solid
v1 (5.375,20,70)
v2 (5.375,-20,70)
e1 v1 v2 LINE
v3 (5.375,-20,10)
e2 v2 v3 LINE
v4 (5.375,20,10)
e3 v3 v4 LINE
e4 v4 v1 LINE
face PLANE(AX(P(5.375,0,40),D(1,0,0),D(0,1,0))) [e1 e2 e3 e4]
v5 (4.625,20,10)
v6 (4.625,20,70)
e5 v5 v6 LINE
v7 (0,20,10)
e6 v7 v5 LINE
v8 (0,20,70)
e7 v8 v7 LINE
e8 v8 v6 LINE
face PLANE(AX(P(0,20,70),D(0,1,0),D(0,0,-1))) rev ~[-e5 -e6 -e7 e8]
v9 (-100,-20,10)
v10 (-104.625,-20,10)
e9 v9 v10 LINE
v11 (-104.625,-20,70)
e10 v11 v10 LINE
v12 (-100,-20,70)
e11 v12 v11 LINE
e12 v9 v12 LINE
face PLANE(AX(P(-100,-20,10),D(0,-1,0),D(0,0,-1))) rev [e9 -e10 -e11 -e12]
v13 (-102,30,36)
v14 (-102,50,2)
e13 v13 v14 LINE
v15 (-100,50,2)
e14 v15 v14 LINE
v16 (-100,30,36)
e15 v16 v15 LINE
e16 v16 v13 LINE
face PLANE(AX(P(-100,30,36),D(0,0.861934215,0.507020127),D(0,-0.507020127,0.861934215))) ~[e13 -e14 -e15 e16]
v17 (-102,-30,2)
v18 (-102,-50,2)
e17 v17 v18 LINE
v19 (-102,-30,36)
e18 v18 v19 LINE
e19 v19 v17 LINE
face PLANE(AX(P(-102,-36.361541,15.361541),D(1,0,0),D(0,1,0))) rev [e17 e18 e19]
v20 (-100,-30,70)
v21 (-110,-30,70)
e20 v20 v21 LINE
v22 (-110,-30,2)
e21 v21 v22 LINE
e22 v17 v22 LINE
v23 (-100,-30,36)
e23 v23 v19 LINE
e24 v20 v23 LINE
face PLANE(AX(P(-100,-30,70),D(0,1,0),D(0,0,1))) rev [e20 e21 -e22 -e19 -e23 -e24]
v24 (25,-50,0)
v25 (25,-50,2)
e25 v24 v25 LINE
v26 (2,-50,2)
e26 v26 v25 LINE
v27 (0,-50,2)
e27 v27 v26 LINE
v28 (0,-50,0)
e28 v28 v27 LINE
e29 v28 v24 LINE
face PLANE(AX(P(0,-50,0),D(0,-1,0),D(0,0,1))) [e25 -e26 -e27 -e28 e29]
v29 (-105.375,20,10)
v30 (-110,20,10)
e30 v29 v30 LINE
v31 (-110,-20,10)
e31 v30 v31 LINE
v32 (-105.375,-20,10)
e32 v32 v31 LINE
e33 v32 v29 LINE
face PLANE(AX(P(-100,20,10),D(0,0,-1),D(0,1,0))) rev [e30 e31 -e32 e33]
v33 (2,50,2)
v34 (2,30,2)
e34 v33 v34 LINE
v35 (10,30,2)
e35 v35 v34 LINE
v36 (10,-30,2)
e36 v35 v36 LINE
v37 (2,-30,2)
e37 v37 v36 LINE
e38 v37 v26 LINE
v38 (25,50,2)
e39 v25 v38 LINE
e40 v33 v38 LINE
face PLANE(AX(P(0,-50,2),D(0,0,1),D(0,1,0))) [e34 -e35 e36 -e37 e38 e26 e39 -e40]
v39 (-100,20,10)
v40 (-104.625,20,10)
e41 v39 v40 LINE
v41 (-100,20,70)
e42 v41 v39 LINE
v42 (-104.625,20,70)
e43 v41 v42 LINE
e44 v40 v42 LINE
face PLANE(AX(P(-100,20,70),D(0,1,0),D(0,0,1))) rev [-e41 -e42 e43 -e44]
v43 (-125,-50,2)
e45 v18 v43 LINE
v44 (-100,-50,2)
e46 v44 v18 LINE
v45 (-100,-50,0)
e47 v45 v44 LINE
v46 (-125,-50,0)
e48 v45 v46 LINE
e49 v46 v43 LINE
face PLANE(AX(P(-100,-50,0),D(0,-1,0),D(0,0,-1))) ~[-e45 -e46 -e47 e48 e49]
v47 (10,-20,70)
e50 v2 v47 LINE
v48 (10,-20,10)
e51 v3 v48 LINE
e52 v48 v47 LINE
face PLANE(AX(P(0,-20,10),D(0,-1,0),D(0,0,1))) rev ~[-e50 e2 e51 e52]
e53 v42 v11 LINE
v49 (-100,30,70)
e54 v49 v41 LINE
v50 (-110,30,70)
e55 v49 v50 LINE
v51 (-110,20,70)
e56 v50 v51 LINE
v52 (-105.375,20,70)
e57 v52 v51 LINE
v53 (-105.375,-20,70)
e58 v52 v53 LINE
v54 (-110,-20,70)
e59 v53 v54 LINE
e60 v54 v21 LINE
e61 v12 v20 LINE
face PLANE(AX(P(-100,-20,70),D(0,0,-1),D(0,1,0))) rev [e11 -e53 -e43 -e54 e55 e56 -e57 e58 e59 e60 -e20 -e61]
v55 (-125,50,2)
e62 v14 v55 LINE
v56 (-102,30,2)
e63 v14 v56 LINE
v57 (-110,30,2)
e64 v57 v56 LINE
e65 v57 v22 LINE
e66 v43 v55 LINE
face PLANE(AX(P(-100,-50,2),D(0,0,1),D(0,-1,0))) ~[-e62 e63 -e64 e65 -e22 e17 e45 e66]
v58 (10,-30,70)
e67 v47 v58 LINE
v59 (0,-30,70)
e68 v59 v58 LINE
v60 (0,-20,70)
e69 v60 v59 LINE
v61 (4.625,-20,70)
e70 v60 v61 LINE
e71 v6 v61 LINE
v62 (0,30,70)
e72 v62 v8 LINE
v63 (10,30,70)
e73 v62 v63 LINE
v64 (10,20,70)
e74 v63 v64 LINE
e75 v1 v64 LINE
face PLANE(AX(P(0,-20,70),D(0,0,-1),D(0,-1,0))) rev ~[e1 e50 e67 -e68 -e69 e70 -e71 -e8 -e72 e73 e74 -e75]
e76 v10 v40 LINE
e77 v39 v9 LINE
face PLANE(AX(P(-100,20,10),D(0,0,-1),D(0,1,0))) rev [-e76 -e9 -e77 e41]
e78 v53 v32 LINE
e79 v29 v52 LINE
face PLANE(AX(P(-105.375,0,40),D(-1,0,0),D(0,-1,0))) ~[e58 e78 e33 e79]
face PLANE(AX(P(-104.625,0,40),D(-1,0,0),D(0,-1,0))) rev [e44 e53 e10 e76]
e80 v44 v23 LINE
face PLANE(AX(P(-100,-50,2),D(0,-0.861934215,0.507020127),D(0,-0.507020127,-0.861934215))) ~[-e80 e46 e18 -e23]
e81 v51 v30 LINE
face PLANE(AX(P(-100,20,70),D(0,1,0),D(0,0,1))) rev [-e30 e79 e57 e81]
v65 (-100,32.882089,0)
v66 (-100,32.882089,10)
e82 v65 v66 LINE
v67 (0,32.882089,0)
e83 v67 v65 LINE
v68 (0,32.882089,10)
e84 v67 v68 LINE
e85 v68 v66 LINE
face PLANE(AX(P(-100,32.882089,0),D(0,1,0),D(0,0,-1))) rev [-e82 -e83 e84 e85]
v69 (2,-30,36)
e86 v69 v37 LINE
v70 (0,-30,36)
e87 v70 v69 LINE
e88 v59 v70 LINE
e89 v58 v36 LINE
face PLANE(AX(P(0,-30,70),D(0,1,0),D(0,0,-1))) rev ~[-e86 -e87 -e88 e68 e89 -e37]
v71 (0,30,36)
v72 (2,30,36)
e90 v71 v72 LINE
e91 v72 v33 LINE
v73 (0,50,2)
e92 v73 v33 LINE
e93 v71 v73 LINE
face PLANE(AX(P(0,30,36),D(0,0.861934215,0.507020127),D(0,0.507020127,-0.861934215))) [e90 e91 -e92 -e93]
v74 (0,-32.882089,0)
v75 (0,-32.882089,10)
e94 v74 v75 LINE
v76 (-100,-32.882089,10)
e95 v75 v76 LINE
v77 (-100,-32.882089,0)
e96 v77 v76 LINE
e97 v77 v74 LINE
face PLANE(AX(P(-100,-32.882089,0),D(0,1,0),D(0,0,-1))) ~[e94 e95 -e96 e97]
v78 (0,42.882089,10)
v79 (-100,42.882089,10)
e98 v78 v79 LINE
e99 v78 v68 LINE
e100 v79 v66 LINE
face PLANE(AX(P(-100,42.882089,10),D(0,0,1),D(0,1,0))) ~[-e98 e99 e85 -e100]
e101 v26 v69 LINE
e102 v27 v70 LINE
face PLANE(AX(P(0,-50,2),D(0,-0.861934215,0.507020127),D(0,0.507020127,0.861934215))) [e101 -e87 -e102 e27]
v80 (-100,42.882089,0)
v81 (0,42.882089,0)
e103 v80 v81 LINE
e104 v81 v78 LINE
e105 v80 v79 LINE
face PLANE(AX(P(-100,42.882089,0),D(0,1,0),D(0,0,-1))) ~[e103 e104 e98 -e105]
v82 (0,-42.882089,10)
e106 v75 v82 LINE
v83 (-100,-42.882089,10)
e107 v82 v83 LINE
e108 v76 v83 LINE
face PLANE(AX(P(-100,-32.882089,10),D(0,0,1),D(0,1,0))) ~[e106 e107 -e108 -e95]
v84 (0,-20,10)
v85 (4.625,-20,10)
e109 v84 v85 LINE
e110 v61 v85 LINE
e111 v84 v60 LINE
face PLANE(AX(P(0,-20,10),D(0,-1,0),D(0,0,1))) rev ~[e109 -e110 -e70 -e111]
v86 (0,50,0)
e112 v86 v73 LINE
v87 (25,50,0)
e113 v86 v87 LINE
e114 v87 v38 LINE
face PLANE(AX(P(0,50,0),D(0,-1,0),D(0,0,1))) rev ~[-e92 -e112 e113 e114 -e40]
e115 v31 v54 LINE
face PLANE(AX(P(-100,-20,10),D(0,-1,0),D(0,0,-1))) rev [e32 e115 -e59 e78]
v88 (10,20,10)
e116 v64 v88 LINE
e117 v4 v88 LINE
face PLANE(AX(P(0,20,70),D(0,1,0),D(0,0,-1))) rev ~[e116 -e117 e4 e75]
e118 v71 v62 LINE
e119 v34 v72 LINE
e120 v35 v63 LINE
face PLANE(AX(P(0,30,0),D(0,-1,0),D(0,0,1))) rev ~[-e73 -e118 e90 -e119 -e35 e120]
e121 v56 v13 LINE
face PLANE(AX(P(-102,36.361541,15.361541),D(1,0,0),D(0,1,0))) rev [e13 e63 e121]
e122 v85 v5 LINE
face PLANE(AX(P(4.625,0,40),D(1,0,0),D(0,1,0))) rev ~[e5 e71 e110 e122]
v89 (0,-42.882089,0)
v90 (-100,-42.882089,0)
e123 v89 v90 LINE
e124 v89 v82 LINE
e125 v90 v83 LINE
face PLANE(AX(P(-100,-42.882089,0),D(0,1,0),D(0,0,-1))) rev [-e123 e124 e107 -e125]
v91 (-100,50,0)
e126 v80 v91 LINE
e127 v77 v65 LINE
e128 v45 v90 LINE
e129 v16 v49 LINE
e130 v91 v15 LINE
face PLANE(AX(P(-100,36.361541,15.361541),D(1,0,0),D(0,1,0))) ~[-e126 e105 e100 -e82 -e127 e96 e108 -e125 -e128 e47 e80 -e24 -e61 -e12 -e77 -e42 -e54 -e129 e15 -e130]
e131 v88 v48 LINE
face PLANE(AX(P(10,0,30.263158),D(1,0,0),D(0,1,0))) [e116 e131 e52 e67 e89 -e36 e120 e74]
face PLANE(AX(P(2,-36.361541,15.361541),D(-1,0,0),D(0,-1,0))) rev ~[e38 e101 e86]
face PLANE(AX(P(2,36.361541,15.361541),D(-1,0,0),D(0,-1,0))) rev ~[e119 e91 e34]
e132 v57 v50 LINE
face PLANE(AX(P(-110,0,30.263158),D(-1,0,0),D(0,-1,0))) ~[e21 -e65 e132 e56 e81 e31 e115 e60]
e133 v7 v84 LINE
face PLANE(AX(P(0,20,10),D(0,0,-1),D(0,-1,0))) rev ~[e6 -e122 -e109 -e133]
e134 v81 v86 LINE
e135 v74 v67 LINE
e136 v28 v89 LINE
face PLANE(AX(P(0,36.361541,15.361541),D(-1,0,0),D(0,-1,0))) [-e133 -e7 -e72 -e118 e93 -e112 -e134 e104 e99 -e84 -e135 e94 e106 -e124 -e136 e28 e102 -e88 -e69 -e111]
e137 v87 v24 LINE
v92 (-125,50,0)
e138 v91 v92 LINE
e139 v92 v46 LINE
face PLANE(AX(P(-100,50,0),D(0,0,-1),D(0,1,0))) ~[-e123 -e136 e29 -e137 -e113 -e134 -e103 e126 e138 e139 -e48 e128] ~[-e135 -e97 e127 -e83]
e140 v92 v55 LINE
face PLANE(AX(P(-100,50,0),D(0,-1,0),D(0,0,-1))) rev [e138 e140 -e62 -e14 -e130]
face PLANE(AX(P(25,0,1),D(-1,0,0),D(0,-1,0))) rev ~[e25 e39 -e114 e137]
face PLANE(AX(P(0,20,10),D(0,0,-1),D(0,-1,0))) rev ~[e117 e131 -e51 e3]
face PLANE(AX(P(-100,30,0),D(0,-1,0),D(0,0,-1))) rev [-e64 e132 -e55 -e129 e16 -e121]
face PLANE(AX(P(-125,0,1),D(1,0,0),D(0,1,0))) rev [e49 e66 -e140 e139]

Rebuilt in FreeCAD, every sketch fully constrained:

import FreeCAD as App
import Part
import Sketcher

doc = App.newDocument("Part")
body = doc.addObject("PartDesign::Body", "Body")

sketch1 = doc.addObject("Sketcher::SketchObject", "Sketch")
body.addObject(sketch1)
sketch1.AttachmentSupport = (doc.YZ_Plane, [""])
sketch1.MapMode = "FlatFace"
sketch1.addGeometry(Part.LineSegment(App.Vector(-30, 0, 0), App.Vector(30, 0, 0)), False)
sketch1.addGeometry(Part.LineSegment(App.Vector(30, 0, 0), App.Vector(30, 70, 0)), False)
sketch1.addGeometry(Part.LineSegment(App.Vector(30, 70, 0), App.Vector(20, 70, 0)), False)
sketch1.addGeometry(Part.LineSegment(App.Vector(20, 70, 0), App.Vector(20, 10, 0)), False)
sketch1.addGeometry(Part.LineSegment(App.Vector(20, 10, 0), App.Vector(-20, 10, 0)), False)
sketch1.addGeometry(Part.LineSegment(App.Vector(-20, 10, 0), App.Vector(-20, 70, 0)), False)
sketch1.addGeometry(Part.LineSegment(App.Vector(-20, 70, 0), App.Vector(-30, 70, 0)), False)
sketch1.addGeometry(Part.LineSegment(App.Vector(-30, 70, 0), App.Vector(-30, 0, 0)), False)
sketch1.addConstraint(Sketcher.Constraint("Coincident", 0, 2, 1, 1))
sketch1.addConstraint(Sketcher.Constraint("Coincident", 1, 2, 2, 1))
sketch1.addConstraint(Sketcher.Constraint("Coincident", 2, 2, 3, 1))
sketch1.addConstraint(Sketcher.Constraint("Coincident", 3, 2, 4, 1))
sketch1.addConstraint(Sketcher.Constraint("Coincident", 4, 2, 5, 1))
sketch1.addConstraint(Sketcher.Constraint("Coincident", 5, 2, 6, 1))
sketch1.addConstraint(Sketcher.Constraint("Coincident", 6, 2, 7, 1))
sketch1.addConstraint(Sketcher.Constraint("Coincident", 7, 2, 0, 1))
sketch1.addConstraint(Sketcher.Constraint("Horizontal", 0))
sketch1.addConstraint(Sketcher.Constraint("Vertical", 1))
sketch1.addConstraint(Sketcher.Constraint("Horizontal", 2))
sketch1.addConstraint(Sketcher.Constraint("Vertical", 3))
sketch1.addConstraint(Sketcher.Constraint("Horizontal", 4))
sketch1.addConstraint(Sketcher.Constraint("Vertical", 5))
sketch1.addConstraint(Sketcher.Constraint("Horizontal", 6))
sketch1.addConstraint(Sketcher.Constraint("Vertical", 7))
sketch1.addConstraint(Sketcher.Constraint("Symmetric", 0, 2, 7, 2, -1, 1))
sketch1.addConstraint(Sketcher.Constraint("Symmetric", 2, 2, 5, 2, -2))
sketch1.addConstraint(Sketcher.Constraint("Equal", 0, 3))
sketch1.addConstraint(Sketcher.Constraint("DistanceX", 0, 1, 0, 2, 60.0))
sketch1.addConstraint(Sketcher.Constraint("DistanceX", 2, 2, 2, 1, 10.0))
sketch1.addConstraint(Sketcher.Constraint("DistanceY", 1, 1, 1, 2, 70.0))
pad1 = doc.addObject("PartDesign::Pad", "Pad")
body.addObject(pad1)
pad1.Profile = sketch1
pad1.Length = 10

sketch2 = doc.addObject("Sketcher::SketchObject", "Sketch001")
body.addObject(sketch2)
sketch2.AttachmentSupport = (doc.YZ_Plane, [""])
sketch2.MapMode = "FlatFace"
sketch2.AttachmentOffset = App.Placement(App.Vector(0, 0, 5), App.Rotation())
sketch2.addGeometry(Part.LineSegment(App.Vector(-20, 10, 0), App.Vector(20, 10, 0)), False)
sketch2.addGeometry(Part.LineSegment(App.Vector(20, 10, 0), App.Vector(20, 70, 0)), False)
sketch2.addGeometry(Part.LineSegment(App.Vector(20, 70, 0), App.Vector(-20, 70, 0)), False)
sketch2.addGeometry(Part.LineSegment(App.Vector(-20, 70, 0), App.Vector(-20, 10, 0)), False)
sketch2.addConstraint(Sketcher.Constraint("Coincident", 0, 2, 1, 1))
sketch2.addConstraint(Sketcher.Constraint("Coincident", 1, 2, 2, 1))
sketch2.addConstraint(Sketcher.Constraint("Coincident", 2, 2, 3, 1))
sketch2.addConstraint(Sketcher.Constraint("Coincident", 3, 2, 0, 1))
sketch2.addConstraint(Sketcher.Constraint("Horizontal", 0))
sketch2.addConstraint(Sketcher.Constraint("Vertical", 1))
sketch2.addConstraint(Sketcher.Constraint("Horizontal", 2))
sketch2.addConstraint(Sketcher.Constraint("Vertical", 3))
sketch2.addConstraint(Sketcher.Constraint("DistanceX", 0, 1, 0, 2, 40.0))
sketch2.addConstraint(Sketcher.Constraint("DistanceY", 1, 1, 1, 2, 60.0))
sketch2.addConstraint(Sketcher.Constraint("DistanceX", -1, 1, 0, 2, 20.0))
sketch2.addConstraint(Sketcher.Constraint("DistanceY", -1, 1, 0, 2, 10.0))
pad2 = doc.addObject("PartDesign::Pad", "Pad001")
body.addObject(pad2)
pad2.Profile = sketch2
pad2.Length = 0.75
pad2.Midplane = True

sketch3 = doc.addObject("Sketcher::SketchObject", "Sketch002")
body.addObject(sketch3)
sketch3.AttachmentSupport = (doc.YZ_Plane, [""])
sketch3.MapMode = "FlatFace"
sketch3.addGeometry(Part.LineSegment(App.Vector(-50, 0, 0), App.Vector(-50, 2, 0)), False)
sketch3.addGeometry(Part.LineSegment(App.Vector(-50, 2, 0), App.Vector(50, 2, 0)), False)
sketch3.addGeometry(Part.LineSegment(App.Vector(50, 2, 0), App.Vector(50, 0, 0)), False)
sketch3.addGeometry(Part.LineSegment(App.Vector(50, 0, 0), App.Vector(-50, 0, 0)), False)
sketch3.addConstraint(Sketcher.Constraint("Coincident", 0, 2, 1, 1))
sketch3.addConstraint(Sketcher.Constraint("Coincident", 1, 2, 2, 1))
sketch3.addConstraint(Sketcher.Constraint("Coincident", 2, 2, 3, 1))
sketch3.addConstraint(Sketcher.Constraint("Coincident", 3, 2, 0, 1))
sketch3.addConstraint(Sketcher.Constraint("Vertical", 0))
sketch3.addConstraint(Sketcher.Constraint("Horizontal", 1))
sketch3.addConstraint(Sketcher.Constraint("Vertical", 2))
sketch3.addConstraint(Sketcher.Constraint("Horizontal", 3))
sketch3.addConstraint(Sketcher.Constraint("Symmetric", 2, 2, 3, 2, -1, 1))
sketch3.addConstraint(Sketcher.Constraint("DistanceX", 1, 1, 1, 2, 100.0))
sketch3.addConstraint(Sketcher.Constraint("DistanceY", 0, 1, 0, 2, 2.0))
pad3 = doc.addObject("PartDesign::Pad", "Pad002")
body.addObject(pad3)
pad3.Profile = sketch3
pad3.Length = 25

sketch4 = doc.addObject("Sketcher::SketchObject", "Sketch003")
body.addObject(sketch4)
sketch4.AttachmentSupport = (doc.YZ_Plane, [""])
sketch4.MapMode = "FlatFace"
sketch4.addGeometry(Part.LineSegment(App.Vector(50, 2, 0), App.Vector(30, 2, 0)), False)
sketch4.addGeometry(Part.LineSegment(App.Vector(30, 2, 0), App.Vector(30, 36, 0)), False)
sketch4.addGeometry(Part.LineSegment(App.Vector(30, 36, 0), App.Vector(50, 2, 0)), False)
sketch4.addGeometry(Part.LineSegment(App.Vector(-30, 2, 0), App.Vector(-50, 2, 0)), False)
sketch4.addGeometry(Part.LineSegment(App.Vector(-50, 2, 0), App.Vector(-30, 36, 0)), False)
sketch4.addGeometry(Part.LineSegment(App.Vector(-30, 36, 0), App.Vector(-30, 2, 0)), False)
sketch4.addConstraint(Sketcher.Constraint("Coincident", 0, 2, 1, 1))
sketch4.addConstraint(Sketcher.Constraint("Coincident", 1, 2, 2, 1))
sketch4.addConstraint(Sketcher.Constraint("Coincident", 2, 2, 0, 1))
sketch4.addConstraint(Sketcher.Constraint("Coincident", 3, 2, 4, 1))
sketch4.addConstraint(Sketcher.Constraint("Coincident", 4, 2, 5, 1))
sketch4.addConstraint(Sketcher.Constraint("Coincident", 5, 2, 3, 1))
sketch4.addConstraint(Sketcher.Constraint("Horizontal", 0))
sketch4.addConstraint(Sketcher.Constraint("Vertical", 1))
sketch4.addConstraint(Sketcher.Constraint("Horizontal", 3))
sketch4.addConstraint(Sketcher.Constraint("Vertical", 5))
sketch4.addConstraint(Sketcher.Constraint("Symmetric", 2, 2, 3, 2, -2))
sketch4.addConstraint(Sketcher.Constraint("Symmetric", 1, 2, 4, 2, -2))
sketch4.addConstraint(Sketcher.Constraint("DistanceX", 0, 2, 0, 1, 20.0))
sketch4.addConstraint(Sketcher.Constraint("DistanceY", 1, 1, 1, 2, 34.0))
sketch4.addConstraint(Sketcher.Constraint("DistanceX", -1, 1, 0, 2, 30.0))
sketch4.addConstraint(Sketcher.Constraint("DistanceY", -1, 1, 0, 2, 2.0))
pad4 = doc.addObject("PartDesign::Pad", "Pad003")
body.addObject(pad4)
pad4.Profile = sketch4
pad4.Length = 2

sketch5 = doc.addObject("Sketcher::SketchObject", "Sketch004")
body.addObject(sketch5)
sketch5.AttachmentSupport = (doc.YZ_Plane, [""])
sketch5.MapMode = "FlatFace"
sketch5.addGeometry(Part.LineSegment(App.Vector(42.882089, 10, 0), App.Vector(42.882089, 0, 0)), False)
sketch5.addGeometry(Part.LineSegment(App.Vector(42.882089, 0, 0), App.Vector(32.882089, 0, 0)), False)
sketch5.addGeometry(Part.LineSegment(App.Vector(32.882089, 0, 0), App.Vector(32.882089, 10, 0)), False)
sketch5.addGeometry(Part.LineSegment(App.Vector(32.882089, 10, 0), App.Vector(42.882089, 10, 0)), False)
sketch5.addGeometry(Part.LineSegment(App.Vector(-32.882089, 10, 0), App.Vector(-32.882089, 0, 0)), False)
sketch5.addGeometry(Part.LineSegment(App.Vector(-32.882089, 0, 0), App.Vector(-42.882089, 0, 0)), False)
sketch5.addGeometry(Part.LineSegment(App.Vector(-42.882089, 0, 0), App.Vector(-42.882089, 10, 0)), False)
sketch5.addGeometry(Part.LineSegment(App.Vector(-42.882089, 10, 0), App.Vector(-32.882089, 10, 0)), False)
sketch5.addConstraint(Sketcher.Constraint("Coincident", 0, 2, 1, 1))
sketch5.addConstraint(Sketcher.Constraint("Coincident", 1, 2, 2, 1))
sketch5.addConstraint(Sketcher.Constraint("Coincident", 2, 2, 3, 1))
sketch5.addConstraint(Sketcher.Constraint("Coincident", 3, 2, 0, 1))
sketch5.addConstraint(Sketcher.Constraint("Coincident", 4, 2, 5, 1))
sketch5.addConstraint(Sketcher.Constraint("Coincident", 5, 2, 6, 1))
sketch5.addConstraint(Sketcher.Constraint("Coincident", 6, 2, 7, 1))
sketch5.addConstraint(Sketcher.Constraint("Coincident", 7, 2, 4, 1))
sketch5.addConstraint(Sketcher.Constraint("Vertical", 0))
sketch5.addConstraint(Sketcher.Constraint("Horizontal", 1))
sketch5.addConstraint(Sketcher.Constraint("Vertical", 2))
sketch5.addConstraint(Sketcher.Constraint("Horizontal", 3))
sketch5.addConstraint(Sketcher.Constraint("Vertical", 4))
sketch5.addConstraint(Sketcher.Constraint("Horizontal", 5))
sketch5.addConstraint(Sketcher.Constraint("Vertical", 6))
sketch5.addConstraint(Sketcher.Constraint("Horizontal", 7))
sketch5.addConstraint(Sketcher.Constraint("Symmetric", 1, 2, 4, 2, -1, 1))
sketch5.addConstraint(Sketcher.Constraint("Symmetric", 0, 2, 5, 2, -2))
sketch5.addConstraint(Sketcher.Constraint("Horizontal", 3, 2, 6, 2))
sketch5.addConstraint(Sketcher.Constraint("Equal", 7, 0))
sketch5.addConstraint(Sketcher.Constraint("DistanceX", 1, 2, 1, 1, 10.0))
sketch5.addConstraint(Sketcher.Constraint("DistanceX", -1, 1, 0, 2, 42.882089))
pad5 = doc.addObject("PartDesign::Pad", "Pad004")
body.addObject(pad5)
pad5.Profile = sketch5
pad5.Length = 50
pad5.Reversed = True
body2 = doc.addObject("PartDesign::Body", "Body001")
doc.recompute()

body2.BaseFeature = body
doc.recompute()

mirroring = doc.addObject("Part::Mirroring", "Mirroring")
mirroring.Source = body
mirroring.Base = App.Vector(-50, 0, 0)
mirroring.Normal = App.Vector(1, 0, 0)
body3 = doc.addObject("PartDesign::Body", "Body002")
body3.BaseFeature = mirroring
boolean = doc.addObject("PartDesign::Boolean", "Boolean")
body2.addObject(boolean)
boolean.Type = "Fuse"
boolean.addObjects([body3])
doc.recompute()
mirroring.Visibility = False

doc.recompute()
